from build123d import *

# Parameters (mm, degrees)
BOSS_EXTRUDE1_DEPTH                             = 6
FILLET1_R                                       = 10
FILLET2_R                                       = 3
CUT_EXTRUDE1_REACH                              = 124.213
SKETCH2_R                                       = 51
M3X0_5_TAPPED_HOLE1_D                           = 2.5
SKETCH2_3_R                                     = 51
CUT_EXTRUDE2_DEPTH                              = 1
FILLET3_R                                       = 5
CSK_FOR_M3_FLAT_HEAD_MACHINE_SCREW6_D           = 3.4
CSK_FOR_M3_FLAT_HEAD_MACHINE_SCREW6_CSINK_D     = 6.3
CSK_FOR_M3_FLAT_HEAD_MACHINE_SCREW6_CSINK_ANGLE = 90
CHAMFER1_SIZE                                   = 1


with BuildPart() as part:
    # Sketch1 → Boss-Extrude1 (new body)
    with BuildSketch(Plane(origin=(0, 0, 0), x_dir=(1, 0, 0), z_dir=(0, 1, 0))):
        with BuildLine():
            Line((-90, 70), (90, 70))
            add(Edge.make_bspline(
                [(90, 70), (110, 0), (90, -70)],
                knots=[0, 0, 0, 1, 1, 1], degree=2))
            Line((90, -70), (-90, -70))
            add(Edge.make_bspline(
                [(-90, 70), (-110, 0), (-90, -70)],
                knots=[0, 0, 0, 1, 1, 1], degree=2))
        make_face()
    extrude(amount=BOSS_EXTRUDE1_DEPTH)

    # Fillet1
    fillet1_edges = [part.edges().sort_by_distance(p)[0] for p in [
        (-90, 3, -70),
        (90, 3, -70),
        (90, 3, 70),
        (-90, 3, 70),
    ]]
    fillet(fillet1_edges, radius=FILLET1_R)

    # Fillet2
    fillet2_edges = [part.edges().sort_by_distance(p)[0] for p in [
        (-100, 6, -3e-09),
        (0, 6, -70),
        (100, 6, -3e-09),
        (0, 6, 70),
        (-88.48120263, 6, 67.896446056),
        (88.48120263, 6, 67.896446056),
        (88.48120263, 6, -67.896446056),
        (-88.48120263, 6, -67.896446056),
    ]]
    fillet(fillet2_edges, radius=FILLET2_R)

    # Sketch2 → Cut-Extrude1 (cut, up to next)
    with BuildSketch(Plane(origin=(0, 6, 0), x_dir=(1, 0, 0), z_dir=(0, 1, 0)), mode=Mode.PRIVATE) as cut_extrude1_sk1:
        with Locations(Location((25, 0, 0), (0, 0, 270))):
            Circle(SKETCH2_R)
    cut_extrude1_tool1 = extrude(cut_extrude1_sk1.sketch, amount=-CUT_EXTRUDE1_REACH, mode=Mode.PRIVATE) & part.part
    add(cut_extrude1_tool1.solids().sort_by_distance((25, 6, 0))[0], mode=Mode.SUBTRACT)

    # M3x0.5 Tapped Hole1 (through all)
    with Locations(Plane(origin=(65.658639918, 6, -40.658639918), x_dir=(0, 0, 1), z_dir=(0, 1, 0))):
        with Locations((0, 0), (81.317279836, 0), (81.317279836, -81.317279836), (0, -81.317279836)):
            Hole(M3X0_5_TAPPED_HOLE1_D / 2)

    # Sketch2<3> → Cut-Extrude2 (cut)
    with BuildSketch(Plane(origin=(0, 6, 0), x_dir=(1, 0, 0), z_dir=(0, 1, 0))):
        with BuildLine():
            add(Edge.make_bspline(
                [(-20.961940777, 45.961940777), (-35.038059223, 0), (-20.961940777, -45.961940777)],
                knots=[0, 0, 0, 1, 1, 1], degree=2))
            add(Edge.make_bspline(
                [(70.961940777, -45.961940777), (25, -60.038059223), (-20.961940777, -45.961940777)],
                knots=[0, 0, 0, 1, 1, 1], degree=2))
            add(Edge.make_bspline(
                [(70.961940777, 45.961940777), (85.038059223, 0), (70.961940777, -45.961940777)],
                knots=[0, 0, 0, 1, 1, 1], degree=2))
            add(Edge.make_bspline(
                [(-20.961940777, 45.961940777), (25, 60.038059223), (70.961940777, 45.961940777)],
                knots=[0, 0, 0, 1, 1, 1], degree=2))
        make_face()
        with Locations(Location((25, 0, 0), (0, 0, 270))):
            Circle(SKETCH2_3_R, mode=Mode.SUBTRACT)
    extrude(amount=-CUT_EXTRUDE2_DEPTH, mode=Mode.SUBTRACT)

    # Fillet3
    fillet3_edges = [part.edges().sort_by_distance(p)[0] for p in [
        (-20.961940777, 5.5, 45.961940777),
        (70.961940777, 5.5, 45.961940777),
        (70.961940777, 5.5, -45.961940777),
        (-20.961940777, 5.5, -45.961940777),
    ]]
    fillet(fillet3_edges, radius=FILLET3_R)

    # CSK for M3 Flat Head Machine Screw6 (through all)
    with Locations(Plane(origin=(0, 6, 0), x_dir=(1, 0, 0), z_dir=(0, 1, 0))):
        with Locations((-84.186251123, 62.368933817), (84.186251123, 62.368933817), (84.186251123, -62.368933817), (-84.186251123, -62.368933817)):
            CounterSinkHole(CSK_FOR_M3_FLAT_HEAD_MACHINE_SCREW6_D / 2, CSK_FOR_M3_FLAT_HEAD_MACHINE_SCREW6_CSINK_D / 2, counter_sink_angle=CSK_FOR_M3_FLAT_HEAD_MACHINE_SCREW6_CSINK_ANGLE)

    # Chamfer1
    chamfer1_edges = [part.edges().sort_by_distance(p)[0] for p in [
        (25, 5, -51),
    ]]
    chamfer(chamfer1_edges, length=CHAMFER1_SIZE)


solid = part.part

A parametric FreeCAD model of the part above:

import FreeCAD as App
import Part
import Sketcher
from FreeCAD import Vector
Q = App.Units.Quantity


def edges_at(feature, points):
    """Names of the edges that pass closest to the given points."""
    edges = feature.Shape.Edges
    near = lambda p: min(range(len(edges)), key=lambda i: edges[i].distToShape(Part.Vertex(*p))[0])
    return sorted({f"Edge{near(p) + 1}" for p in points})

doc = App.newDocument("Part")
body = doc.addObject("PartDesign::Body", "Body")

sketch1 = doc.addObject("Sketcher::SketchObject", "Sketch")
body.addObject(sketch1)
sketch1.AttachmentSupport = (doc.XZ_Plane, [""])
sketch1.MapMode = "FlatFace"
sketch1.addGeometry([
    Part.LineSegment(Vector(90, -70, 0), Vector(-90, -70, 0)),
    Part.BSplineCurve([Vector(-90, -70, 0), Vector(-110, 0, 0), Vector(-90, 70, 0)], [3, 3], [0, 1], False, 2, [1, 1, 1], False),
    Part.LineSegment(Vector(-90, 70, 0), Vector(90, 70, 0)),
    Part.BSplineCurve([Vector(90, -70, 0), Vector(110, 0, 0), Vector(90, 70, 0)], [3, 3], [0, 1], False, 2, [1, 1, 1], False),
], False)
sketch1.addConstraint([
    Sketcher.Constraint("Block", 1),
    Sketcher.Constraint("Block", 3),
    Sketcher.Constraint("Coincident", 0, 2, 1, 1),
    Sketcher.Constraint("Coincident", 1, 2, 2, 1),
    Sketcher.Constraint("Coincident", 2, 2, 3, 2),
    Sketcher.Constraint("Coincident", 3, 1, 0, 1),
])
pad1 = doc.addObject("PartDesign::Pad", "Pad")
body.addObject(pad1)
pad1.Profile = sketch1
pad1.Length = 6
pad1.Reversed = True
doc.recompute()

fillet = doc.addObject("PartDesign::Fillet", "Fillet")
body.addObject(fillet)
fillet.Base = (pad1, edges_at(pad1, [
    (-90, 3, -70),
    (90, 3, -70),
    (90, 3, 70),
    (-90, 3, 70),
]))
fillet.Radius = 10
doc.recompute()

fillet2 = doc.addObject("PartDesign::Fillet", "Fillet001")
body.addObject(fillet2)
fillet2.Base = (fillet, edges_at(fillet, [
    (-100, 6, 0),
    (0, 6, -70),
    (100, 6, 0),
    (0, 6, 70),
    (-88.481, 6, 67.896),
    (88.481, 6, 67.896),
    (88.481, 6, -67.896),
    (-88.481, 6, -67.896),
]))
fillet2.Radius = 3

sketch2 = doc.addObject("Sketcher::SketchObject", "Sketch001")
body.addObject(sketch2)
sketch2.AttachmentSupport = (doc.XZ_Plane, [""])
sketch2.MapMode = "FlatFace"
sketch2.AttachmentOffset = App.Placement(Vector(0, 0, -6), App.Rotation())
sketch2.addGeometry(Part.Circle(Vector(25, 0, 0), Vector(0, 0, 1), 51), False)
sketch2.addConstraint([
    Sketcher.Constraint("PointOnObject", 0, 3, -1),
    Sketcher.Constraint("Diameter", 0, Q("102 mm")),
    Sketcher.Constraint("DistanceX", -1, 1, 0, 3, Q("25 mm")),
])
pocket1 = doc.addObject("PartDesign::Pocket", "Pocket")
body.addObject(pocket1)
pocket1.Profile = sketch2
pocket1.Type = "UpToFirst"
pocket1.Reversed = True

sketch3 = doc.addObject("Sketcher::SketchObject", "Sketch002")
body.addObject(sketch3)
sketch3.AttachmentSupport = (doc.XZ_Plane, [""])
sketch3.MapMode = "FlatFace"
sketch3.AttachmentOffset = App.Placement(Vector(0, 0, -6), App.Rotation())
sketch3.addGeometry([
    Part.Circle(Vector(65.7, -40.7, 0), Vector(0, 0, 1), 1.2),
    Part.Circle(Vector(65.7, 40.7, 0), Vector(0, 0, 1), 1.2),
    Part.Circle(Vector(-15.7, 40.7, 0), Vector(0, 0, 1), 1.2),
    Part.Circle(Vector(-15.7, -40.7, 0), Vector(0, 0, 1), 1.2),
], False)
sketch3.addConstraint([
    Sketcher.Constraint("Equal", 0, 1),
    Sketcher.Constraint("Equal", 1, 2),
    Sketcher.Constraint("Equal", 2, 3),
    Sketcher.Constraint("Symmetric", 0, 3, 1, 3, -1),
    Sketcher.Constraint("Symmetric", 2, 3, 3, 3, -1),
    Sketcher.Constraint("Horizontal", 1, 3, 2, 3),
    Sketcher.Constraint("Diameter", 0, Q("2.5 mm")),
    Sketcher.Constraint("DistanceX", -1, 1, 0, 3, Q("65.65864 mm")),
    Sketcher.Constraint("DistanceY", 0, 3, -1, 1, Q("40.65864 mm")),
    Sketcher.Constraint("DistanceX", 2, 3, -1, 1, Q("15.65864 mm")),
])
doc.recompute()
hole = doc.addObject("PartDesign::Hole", "Hole")
body.addObject(hole)
hole.Profile = sketch3
hole.ThreadType = "None"
hole.Diameter = 2.5
hole.DepthType = "ThroughAll"
hole.Reversed = True

sketch4 = doc.addObject("Sketcher::SketchObject", "Sketch003")
body.addObject(sketch4)
sketch4.AttachmentSupport = (doc.XZ_Plane, [""])
sketch4.MapMode = "FlatFace"
sketch4.AttachmentOffset = App.Placement(Vector(0, 0, -6), App.Rotation())
sketch4.addGeometry([
    Part.BSplineCurve([Vector(-20.961941, -45.961941, 0), Vector(-35.038059, 0, 0), Vector(-20.961941, 45.961941, 0)], [3, 3], [0, 1], False, 2, [1, 1, 1], False),
    Part.BSplineCurve([Vector(70.961941, 45.961941, 0), Vector(25, 60.038059, 0), Vector(-20.961941, 45.961941, 0)], [3, 3], [0, 1], False, 2, [1, 1, 1], False),
    Part.BSplineCurve([Vector(70.961941, -45.961941, 0), Vector(85.038059, 0, 0), Vector(70.961941, 45.961941, 0)], [3, 3], [0, 1], False, 2, [1, 1, 1], False),
    Part.BSplineCurve([Vector(-20.961941, -45.961941, 0), Vector(25, -60.038059, 0), Vector(70.961941, -45.961941, 0)], [3, 3], [0, 1], False, 2, [1, 1, 1], False),
    Part.Circle(Vector(25, 0, 0), Vector(0, 0, 1), 51),
], False)
sketch4.addConstraint([
    Sketcher.Constraint("Block", 0),
    Sketcher.Constraint("Block", 1),
    Sketcher.Constraint("Block", 2),
    Sketcher.Constraint("Block", 3),
    Sketcher.Constraint("PointOnObject", 4, 3, -1),
    Sketcher.Constraint("Diameter", 4, Q("102 mm")),
    Sketcher.Constraint("DistanceX", -1, 1, 4, 3, Q("25 mm")),
])
pocket2 = doc.addObject("PartDesign::Pocket", "Pocket001")
body.addObject(pocket2)
pocket2.Profile = sketch4
pocket2.Length = 1
pocket2.Reversed = True
doc.recompute()

fillet3 = doc.addObject("PartDesign::Fillet", "Fillet002")
body.addObject(fillet3)
fillet3.Base = (pocket2, edges_at(pocket2, [
    (-20.962, 5.5, 45.962),
    (70.962, 5.5, 45.962),
    (70.962, 5.5, -45.962),
    (-20.962, 5.5, -45.962),
]))
fillet3.Radius = 5

sketch5 = doc.addObject("Sketcher::SketchObject", "Sketch004")
body.addObject(sketch5)
sketch5.AttachmentSupport = (doc.XZ_Plane, [""])
sketch5.MapMode = "FlatFace"
sketch5.AttachmentOffset = App.Placement(Vector(0, 0, -6), App.Rotation())
sketch5.addGeometry([
    Part.Circle(Vector(-84.2, -62.4, 0), Vector(0, 0, 1), 1.7),
    Part.Circle(Vector(84.2, -62.4, 0), Vector(0, 0, 1), 1.7),
    Part.Circle(Vector(84.2, 62.4, 0), Vector(0, 0, 1), 1.7),
    Part.Circle(Vector(-84.2, 62.4, 0), Vector(0, 0, 1), 1.7),
], False)
sketch5.addConstraint([
    Sketcher.Constraint("Equal", 0, 1),
    Sketcher.Constraint("Equal", 1, 2),
    Sketcher.Constraint("Equal", 2, 3),
    Sketcher.Constraint("Symmetric", 0, 3, 2, 3, -1, 1),
    Sketcher.Constraint("Symmetric", 1, 3, 3, 3, -1, 1),
    Sketcher.Constraint("Symmetric", 0, 3, 1, 3, -2),
    Sketcher.Constraint("Diameter", 0, Q("3.4 mm")),
    Sketcher.Constraint("DistanceX", 0, 3, -1, 1, Q("84.186251 mm")),
    Sketcher.Constraint("DistanceY", 0, 3, -1, 1, Q("62.368934 mm")),
])
doc.recompute()
hole2 = doc.addObject("PartDesign::Hole", "Hole001")
body.addObject(hole2)
hole2.Profile = sketch5
hole2.ThreadType = "None"
hole2.Diameter = 3.4
hole2.DepthType = "ThroughAll"
hole2.HoleCutType = "Countersink"
hole2.HoleCutDiameter = 6.3
hole2.HoleCutCountersinkAngle = 90
hole2.Reversed = True
doc.recompute()

chamfer = doc.addObject("PartDesign::Chamfer", "Chamfer")
body.addObject(chamfer)
chamfer.Base = (hole2, edges_at(hole2, [(25, 5, -51)]))
chamfer.Size = 1

doc.recompute()
